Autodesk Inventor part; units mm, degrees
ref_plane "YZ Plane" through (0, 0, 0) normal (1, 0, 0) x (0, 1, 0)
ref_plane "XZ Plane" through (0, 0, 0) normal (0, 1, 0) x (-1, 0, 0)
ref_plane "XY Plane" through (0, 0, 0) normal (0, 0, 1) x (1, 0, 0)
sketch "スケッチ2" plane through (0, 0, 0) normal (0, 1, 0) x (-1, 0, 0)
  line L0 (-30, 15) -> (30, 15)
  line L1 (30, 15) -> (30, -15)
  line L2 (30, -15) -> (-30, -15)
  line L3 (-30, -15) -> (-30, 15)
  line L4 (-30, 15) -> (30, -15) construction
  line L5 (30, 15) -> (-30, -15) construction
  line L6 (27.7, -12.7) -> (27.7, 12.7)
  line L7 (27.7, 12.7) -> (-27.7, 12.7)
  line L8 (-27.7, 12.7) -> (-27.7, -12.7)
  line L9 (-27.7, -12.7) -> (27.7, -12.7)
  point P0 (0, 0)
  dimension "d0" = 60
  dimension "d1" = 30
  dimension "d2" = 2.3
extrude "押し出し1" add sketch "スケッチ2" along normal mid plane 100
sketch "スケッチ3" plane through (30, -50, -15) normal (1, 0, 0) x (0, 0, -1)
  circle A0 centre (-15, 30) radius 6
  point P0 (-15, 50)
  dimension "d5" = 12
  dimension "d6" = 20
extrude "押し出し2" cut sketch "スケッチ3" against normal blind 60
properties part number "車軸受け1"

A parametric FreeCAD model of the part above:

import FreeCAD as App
import Part
import Sketcher
Q = App.Units.Quantity

doc = App.newDocument("Part")
body = doc.addObject("PartDesign::Body", "Body")

sketch1 = body.newObject("Sketcher::SketchObject", "Sketch")
sketch1.AttachmentSupport = (doc.getObject("XZ_Plane"), [""])
sketch1.MapMode = "FlatFace"
sketch1.addGeometry([
    Part.LineSegment(App.Vector(-30, 15, 0), App.Vector(30, 15, 0)),
    Part.LineSegment(App.Vector(30, 15, 0), App.Vector(30, -15, 0)),
    Part.LineSegment(App.Vector(30, -15, 0), App.Vector(-30, -15, 0)),
    Part.LineSegment(App.Vector(-30, -15, 0), App.Vector(-30, 15, 0)),
    Part.LineSegment(App.Vector(-28, 13, 0), App.Vector(-28, -13, 0)),
    Part.LineSegment(App.Vector(-28, -13, 0), App.Vector(28, -13, 0)),
    Part.LineSegment(App.Vector(28, -13, 0), App.Vector(28, 13, 0)),
    Part.LineSegment(App.Vector(28, 13, 0), App.Vector(-28, 13, 0)),
], False)
sketch1.addConstraint([
    Sketcher.Constraint("Coincident", 0, 2, 1, 1),
    Sketcher.Constraint("Coincident", 1, 2, 2, 1),
    Sketcher.Constraint("Coincident", 2, 2, 3, 1),
    Sketcher.Constraint("Coincident", 3, 2, 0, 1),
    Sketcher.Constraint("Coincident", 4, 2, 5, 1),
    Sketcher.Constraint("Coincident", 5, 2, 6, 1),
    Sketcher.Constraint("Coincident", 6, 2, 7, 1),
    Sketcher.Constraint("Coincident", 7, 2, 4, 1),
    Sketcher.Constraint("Horizontal", 0),
    Sketcher.Constraint("Vertical", 1),
    Sketcher.Constraint("Horizontal", 2),
    Sketcher.Constraint("Vertical", 3),
    Sketcher.Constraint("Vertical", 4),
    Sketcher.Constraint("Horizontal", 5),
    Sketcher.Constraint("Vertical", 6),
    Sketcher.Constraint("Horizontal", 7),
    Sketcher.Constraint("Symmetric", 0, 2, 2, 2, -1, 1),
    Sketcher.Constraint("Symmetric", 4, 2, 6, 2, -1, 1),
    Sketcher.Constraint("DistanceX", 0, 1, 0, 2, Q("60 mm")),
    Sketcher.Constraint("DistanceY", 1, 2, 1, 1, Q("30 mm")),
    Sketcher.Constraint("DistanceX", 2, 2, 4, 2, Q("2.3 mm")),
    Sketcher.Constraint("DistanceY", 2, 2, 4, 2, Q("2.3 mm")),
])
pad1 = body.newObject("PartDesign::Pad", "Pad")
pad1.Profile = sketch1
pad1.Length = 100
pad1.Midplane = True

sketch2 = body.newObject("Sketcher::SketchObject", "Sketch001")
sketch2.AttachmentSupport = (doc.getObject("YZ_Plane"), [""])
sketch2.MapMode = "FlatFace"
sketch2.AttachmentOffset = App.Placement(App.Vector(0, 0, 30), App.Rotation())
sketch2.addGeometry(Part.Circle(App.Vector(-20, 0, 0), App.Vector(0, 0, 1), 6), False)
sketch2.addConstraint([
    Sketcher.Constraint("PointOnObject", 0, 3, -1),
    Sketcher.Constraint("Diameter", 0, Q("12 mm")),
    Sketcher.Constraint("DistanceX", 0, 3, -1, 1, Q("20 mm")),
])
pocket1 = body.newObject("PartDesign::Pocket", "Pocket")
pocket1.Profile = sketch2
pocket1.Length = 60

doc.recompute()
